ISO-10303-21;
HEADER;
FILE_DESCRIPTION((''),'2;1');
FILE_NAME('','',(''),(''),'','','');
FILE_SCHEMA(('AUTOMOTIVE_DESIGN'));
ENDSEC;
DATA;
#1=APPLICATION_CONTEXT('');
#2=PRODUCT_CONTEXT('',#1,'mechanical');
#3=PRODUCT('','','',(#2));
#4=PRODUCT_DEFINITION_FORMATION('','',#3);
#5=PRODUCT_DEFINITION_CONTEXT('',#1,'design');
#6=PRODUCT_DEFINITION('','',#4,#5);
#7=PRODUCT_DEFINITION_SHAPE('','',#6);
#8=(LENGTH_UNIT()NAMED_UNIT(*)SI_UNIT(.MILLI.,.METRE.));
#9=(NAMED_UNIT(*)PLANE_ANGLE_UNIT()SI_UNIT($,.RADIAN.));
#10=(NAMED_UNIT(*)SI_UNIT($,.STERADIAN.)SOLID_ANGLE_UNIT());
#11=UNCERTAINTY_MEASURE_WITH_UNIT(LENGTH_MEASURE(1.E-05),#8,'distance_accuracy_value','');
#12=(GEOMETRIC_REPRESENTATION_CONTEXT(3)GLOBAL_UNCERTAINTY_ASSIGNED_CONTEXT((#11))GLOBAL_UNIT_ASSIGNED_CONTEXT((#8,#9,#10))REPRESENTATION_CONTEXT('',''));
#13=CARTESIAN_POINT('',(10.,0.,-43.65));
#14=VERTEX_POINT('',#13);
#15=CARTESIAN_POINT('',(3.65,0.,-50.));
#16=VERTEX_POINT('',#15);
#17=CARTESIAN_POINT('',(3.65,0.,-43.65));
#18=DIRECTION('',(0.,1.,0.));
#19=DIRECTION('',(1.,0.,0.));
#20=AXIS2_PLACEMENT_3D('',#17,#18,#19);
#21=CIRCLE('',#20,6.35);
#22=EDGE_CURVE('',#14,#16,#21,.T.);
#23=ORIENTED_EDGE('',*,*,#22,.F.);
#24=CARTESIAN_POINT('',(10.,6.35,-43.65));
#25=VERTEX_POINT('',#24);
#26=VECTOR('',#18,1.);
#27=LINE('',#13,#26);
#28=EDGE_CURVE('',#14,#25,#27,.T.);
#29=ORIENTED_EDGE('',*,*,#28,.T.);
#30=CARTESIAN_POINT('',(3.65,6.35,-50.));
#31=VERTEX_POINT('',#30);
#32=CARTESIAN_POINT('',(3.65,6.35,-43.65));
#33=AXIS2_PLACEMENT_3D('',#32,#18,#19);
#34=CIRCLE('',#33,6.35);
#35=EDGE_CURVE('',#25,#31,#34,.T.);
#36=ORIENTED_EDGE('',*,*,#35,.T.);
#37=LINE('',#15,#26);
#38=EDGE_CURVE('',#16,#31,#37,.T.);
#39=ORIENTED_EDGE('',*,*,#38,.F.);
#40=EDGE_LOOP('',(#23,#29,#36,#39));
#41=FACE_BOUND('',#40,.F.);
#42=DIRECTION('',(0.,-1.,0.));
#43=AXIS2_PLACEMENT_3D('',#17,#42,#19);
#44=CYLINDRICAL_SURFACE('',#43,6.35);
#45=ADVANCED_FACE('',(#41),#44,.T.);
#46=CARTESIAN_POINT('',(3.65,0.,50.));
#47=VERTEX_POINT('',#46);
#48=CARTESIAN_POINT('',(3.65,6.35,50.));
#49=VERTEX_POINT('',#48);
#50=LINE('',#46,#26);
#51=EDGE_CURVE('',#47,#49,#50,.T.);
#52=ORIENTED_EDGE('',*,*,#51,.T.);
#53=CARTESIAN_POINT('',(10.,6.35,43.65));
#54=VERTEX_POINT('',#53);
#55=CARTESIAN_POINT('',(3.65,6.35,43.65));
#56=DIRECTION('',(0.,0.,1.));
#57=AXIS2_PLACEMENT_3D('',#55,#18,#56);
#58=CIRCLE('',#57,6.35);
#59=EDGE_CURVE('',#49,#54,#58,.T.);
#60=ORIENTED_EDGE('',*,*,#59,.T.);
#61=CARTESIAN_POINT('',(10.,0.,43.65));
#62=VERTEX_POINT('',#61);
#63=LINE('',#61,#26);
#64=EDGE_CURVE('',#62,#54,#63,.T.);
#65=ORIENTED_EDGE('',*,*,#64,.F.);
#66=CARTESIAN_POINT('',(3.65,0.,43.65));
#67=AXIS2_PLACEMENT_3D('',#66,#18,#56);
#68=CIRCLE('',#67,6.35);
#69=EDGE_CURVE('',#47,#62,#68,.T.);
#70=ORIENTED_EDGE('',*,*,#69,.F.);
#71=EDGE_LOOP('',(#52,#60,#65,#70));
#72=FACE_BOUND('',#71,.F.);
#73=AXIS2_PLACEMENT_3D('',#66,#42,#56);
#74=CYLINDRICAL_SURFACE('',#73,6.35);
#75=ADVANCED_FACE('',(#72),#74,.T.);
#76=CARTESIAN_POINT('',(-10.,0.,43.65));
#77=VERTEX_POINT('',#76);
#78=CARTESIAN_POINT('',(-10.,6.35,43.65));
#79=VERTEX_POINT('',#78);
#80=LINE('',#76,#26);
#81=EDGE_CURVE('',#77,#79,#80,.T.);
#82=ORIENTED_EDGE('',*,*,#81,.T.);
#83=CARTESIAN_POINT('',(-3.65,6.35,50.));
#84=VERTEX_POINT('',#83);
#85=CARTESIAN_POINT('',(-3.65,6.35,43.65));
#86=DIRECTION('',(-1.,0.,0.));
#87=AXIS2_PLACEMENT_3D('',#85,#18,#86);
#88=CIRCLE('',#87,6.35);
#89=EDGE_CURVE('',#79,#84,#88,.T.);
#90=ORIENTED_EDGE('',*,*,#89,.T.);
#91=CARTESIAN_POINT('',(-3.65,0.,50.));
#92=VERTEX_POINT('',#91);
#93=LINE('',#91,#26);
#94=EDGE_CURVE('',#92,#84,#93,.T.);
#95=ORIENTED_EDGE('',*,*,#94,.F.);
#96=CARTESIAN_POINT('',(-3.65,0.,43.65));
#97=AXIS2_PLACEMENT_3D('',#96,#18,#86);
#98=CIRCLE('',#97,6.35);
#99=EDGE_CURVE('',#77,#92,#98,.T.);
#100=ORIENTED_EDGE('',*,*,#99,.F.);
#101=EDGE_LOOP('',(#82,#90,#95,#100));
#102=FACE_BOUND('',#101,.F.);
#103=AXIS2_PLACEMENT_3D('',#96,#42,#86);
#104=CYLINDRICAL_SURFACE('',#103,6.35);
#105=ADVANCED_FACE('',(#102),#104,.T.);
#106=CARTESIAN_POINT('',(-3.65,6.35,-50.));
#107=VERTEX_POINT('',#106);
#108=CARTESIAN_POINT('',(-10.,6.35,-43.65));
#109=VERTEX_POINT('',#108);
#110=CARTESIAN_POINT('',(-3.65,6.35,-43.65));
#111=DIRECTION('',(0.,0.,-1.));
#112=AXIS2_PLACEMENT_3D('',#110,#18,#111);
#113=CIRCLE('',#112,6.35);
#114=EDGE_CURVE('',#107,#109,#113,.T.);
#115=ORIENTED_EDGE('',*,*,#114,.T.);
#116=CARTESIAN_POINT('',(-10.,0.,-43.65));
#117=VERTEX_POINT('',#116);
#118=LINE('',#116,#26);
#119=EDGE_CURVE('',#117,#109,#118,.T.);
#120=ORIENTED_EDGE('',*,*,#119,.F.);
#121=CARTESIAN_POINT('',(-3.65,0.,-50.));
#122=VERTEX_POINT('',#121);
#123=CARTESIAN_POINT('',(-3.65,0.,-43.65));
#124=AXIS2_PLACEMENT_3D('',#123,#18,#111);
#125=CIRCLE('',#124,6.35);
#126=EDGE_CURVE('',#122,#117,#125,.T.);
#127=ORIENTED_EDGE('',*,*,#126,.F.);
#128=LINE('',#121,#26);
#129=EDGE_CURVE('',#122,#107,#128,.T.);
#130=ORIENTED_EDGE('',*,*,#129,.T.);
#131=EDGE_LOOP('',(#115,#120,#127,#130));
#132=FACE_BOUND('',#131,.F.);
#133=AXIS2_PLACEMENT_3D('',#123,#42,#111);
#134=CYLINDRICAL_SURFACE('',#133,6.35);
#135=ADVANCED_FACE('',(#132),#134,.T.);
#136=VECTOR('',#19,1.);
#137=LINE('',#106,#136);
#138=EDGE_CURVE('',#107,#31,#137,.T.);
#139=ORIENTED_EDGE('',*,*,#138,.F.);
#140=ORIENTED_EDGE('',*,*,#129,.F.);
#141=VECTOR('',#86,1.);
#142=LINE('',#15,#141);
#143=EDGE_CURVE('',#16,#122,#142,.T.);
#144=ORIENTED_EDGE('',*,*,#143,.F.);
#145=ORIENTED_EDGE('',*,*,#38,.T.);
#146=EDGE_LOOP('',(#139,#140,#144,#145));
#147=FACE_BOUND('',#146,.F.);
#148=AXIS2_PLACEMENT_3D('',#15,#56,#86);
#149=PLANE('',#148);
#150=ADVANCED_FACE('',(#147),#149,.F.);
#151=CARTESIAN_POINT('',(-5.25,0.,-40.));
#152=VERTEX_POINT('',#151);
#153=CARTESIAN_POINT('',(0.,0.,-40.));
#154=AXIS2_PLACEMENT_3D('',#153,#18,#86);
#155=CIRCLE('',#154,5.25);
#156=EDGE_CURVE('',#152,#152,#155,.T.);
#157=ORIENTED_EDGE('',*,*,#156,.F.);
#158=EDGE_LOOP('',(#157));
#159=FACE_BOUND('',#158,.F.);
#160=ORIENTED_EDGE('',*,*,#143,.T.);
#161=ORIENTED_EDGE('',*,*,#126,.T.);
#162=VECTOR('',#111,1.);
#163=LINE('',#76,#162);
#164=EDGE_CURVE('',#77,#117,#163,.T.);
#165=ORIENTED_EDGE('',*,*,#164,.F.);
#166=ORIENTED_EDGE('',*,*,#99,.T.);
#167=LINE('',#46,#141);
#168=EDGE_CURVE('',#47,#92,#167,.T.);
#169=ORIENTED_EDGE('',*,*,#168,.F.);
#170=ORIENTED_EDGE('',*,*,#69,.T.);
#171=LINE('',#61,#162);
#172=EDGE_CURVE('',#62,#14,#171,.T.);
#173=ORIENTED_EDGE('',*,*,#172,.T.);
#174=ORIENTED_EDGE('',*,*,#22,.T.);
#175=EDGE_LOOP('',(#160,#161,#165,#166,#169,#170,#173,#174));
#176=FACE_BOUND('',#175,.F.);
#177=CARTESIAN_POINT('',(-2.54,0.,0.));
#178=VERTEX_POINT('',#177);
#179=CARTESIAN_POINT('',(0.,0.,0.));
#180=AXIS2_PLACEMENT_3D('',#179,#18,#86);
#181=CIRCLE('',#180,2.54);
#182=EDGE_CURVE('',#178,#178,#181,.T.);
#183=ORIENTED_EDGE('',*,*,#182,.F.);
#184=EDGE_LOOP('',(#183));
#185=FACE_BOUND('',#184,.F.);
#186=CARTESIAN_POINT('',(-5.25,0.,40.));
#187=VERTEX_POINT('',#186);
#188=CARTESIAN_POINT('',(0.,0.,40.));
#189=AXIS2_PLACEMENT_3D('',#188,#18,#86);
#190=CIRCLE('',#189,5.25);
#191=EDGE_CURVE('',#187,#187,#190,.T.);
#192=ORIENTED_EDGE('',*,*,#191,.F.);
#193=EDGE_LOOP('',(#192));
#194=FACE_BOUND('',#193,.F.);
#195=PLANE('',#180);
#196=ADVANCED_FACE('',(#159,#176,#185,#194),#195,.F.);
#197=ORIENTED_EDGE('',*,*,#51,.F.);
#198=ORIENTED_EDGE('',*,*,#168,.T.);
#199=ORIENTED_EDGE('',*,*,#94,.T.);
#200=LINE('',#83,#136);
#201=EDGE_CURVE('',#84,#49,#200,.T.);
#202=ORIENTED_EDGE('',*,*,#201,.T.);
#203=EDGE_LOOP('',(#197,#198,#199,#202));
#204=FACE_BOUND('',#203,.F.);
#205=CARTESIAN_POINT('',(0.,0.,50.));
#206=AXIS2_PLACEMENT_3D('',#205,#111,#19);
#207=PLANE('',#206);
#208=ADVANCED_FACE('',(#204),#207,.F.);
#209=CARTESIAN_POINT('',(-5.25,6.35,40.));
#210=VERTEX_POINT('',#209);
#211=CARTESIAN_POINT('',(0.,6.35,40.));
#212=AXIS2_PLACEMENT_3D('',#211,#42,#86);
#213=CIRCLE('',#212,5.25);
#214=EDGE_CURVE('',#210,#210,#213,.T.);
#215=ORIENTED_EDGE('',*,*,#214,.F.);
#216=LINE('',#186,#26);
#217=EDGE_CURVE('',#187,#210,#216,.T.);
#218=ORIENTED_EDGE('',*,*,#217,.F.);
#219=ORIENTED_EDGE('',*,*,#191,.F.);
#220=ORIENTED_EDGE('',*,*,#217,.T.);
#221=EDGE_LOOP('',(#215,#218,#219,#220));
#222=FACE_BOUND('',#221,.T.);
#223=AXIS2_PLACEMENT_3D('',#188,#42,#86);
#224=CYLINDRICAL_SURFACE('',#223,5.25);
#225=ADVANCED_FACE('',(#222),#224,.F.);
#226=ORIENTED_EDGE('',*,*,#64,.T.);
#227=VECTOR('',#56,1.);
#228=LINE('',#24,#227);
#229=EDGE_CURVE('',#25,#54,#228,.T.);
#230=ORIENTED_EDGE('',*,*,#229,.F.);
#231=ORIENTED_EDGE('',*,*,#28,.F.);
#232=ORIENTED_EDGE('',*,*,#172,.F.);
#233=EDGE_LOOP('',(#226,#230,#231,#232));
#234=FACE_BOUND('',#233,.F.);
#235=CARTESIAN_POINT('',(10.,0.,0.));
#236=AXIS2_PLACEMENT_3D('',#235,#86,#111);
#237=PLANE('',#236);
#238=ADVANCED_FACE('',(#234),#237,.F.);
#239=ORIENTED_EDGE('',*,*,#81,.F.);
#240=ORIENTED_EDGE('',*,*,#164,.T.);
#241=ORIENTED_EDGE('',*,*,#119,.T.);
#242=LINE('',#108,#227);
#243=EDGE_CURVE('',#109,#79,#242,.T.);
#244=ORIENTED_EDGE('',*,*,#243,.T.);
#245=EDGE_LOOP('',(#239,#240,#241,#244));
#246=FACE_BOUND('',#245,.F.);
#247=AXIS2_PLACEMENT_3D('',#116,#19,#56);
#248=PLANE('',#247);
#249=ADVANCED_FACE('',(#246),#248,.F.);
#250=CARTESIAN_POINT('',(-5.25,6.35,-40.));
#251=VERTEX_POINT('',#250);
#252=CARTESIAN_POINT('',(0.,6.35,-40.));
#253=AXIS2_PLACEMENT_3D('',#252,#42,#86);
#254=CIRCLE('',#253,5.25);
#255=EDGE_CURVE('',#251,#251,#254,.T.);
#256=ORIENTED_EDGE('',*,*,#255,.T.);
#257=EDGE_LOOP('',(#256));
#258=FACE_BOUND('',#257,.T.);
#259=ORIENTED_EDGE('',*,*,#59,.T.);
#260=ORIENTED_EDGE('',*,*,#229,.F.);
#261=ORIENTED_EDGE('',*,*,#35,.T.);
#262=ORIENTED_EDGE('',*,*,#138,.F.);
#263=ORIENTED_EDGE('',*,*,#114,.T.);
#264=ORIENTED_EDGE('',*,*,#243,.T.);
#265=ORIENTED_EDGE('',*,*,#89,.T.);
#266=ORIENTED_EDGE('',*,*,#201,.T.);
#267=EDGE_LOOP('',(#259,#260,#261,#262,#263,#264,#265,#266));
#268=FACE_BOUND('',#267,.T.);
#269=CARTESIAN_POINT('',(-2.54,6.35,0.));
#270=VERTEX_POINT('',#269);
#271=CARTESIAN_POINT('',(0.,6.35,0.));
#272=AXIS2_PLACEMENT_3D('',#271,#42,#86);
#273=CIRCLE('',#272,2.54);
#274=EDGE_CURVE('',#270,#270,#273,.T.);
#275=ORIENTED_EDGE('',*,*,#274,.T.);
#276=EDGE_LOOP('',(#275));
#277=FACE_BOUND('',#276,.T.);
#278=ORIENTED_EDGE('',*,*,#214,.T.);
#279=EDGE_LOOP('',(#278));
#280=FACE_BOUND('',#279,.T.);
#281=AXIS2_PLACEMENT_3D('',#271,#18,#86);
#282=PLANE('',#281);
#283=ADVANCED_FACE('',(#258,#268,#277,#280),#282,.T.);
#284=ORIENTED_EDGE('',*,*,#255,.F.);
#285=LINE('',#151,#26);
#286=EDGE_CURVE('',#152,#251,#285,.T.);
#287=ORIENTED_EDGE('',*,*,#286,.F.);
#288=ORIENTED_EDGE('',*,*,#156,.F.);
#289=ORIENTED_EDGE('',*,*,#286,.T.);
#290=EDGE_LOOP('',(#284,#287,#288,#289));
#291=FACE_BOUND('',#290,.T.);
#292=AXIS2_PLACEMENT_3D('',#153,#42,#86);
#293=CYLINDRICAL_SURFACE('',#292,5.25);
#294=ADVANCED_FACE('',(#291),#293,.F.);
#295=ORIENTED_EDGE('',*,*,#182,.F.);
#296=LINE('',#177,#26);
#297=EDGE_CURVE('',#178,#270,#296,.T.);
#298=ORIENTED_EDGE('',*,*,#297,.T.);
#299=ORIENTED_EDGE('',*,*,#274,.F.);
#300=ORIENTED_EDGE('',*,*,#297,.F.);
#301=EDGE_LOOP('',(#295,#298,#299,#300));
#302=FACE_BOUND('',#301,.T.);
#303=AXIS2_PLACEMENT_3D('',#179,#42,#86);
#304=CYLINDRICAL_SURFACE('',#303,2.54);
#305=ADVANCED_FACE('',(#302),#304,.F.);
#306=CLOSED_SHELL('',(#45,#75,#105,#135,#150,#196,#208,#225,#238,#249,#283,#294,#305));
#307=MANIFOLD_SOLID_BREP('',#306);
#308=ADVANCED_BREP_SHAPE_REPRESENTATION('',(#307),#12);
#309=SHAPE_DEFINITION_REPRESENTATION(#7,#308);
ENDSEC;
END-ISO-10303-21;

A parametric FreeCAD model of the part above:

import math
import FreeCAD as App
import Part
import Sketcher

V = App.Vector
Q = App.Units.Quantity

doc = App.newDocument("Part")
body = doc.addObject("PartDesign::Body", "Body")

# Sketch on XZ plane
sketch1 = body.newObject("Sketcher::SketchObject", "Sketch")
sketch1.AttachmentSupport = (doc.getObject("XZ_Plane"), [""])
sketch1.MapMode = "FlatFace"
sketch1.addGeometry(Part.ArcOfCircle(Part.Circle(V(3.65, -43.65, 0), V(0, 0, 1), 6.35), math.radians(-90), math.radians(0)), False)
sketch1.addGeometry(Part.LineSegment(V(3.65, -50, 0), V(-3.65, -50, 0)), False)
sketch1.addGeometry(Part.ArcOfCircle(Part.Circle(V(-3.65, -43.65, 0), V(0, 0, 1), 6.35), math.radians(180), math.radians(270)), False)
sketch1.addGeometry(Part.LineSegment(V(-10, -43.65, 0), V(-10, 43.65, 0)), False)
sketch1.addGeometry(Part.ArcOfCircle(Part.Circle(V(-3.65, 43.65, 0), V(0, 0, 1), 6.35), math.radians(90), math.radians(180)), False)
sketch1.addGeometry(Part.LineSegment(V(-3.65, 50, 0), V(3.65, 50, 0)), False)
sketch1.addGeometry(Part.ArcOfCircle(Part.Circle(V(3.65, 43.65, 0), V(0, 0, 1), 6.35), math.radians(0), math.radians(90)), False)
sketch1.addGeometry(Part.LineSegment(V(10, 43.65, 0), V(10, -43.65, 0)), False)
sketch1.addGeometry(Part.Circle(V(0, 0, 0), V(0, 0, 1), 2.54), False)
sketch1.addGeometry(Part.Circle(V(0, -40, 0), V(0, 0, 1), 5.25), False)
sketch1.addGeometry(Part.Circle(V(0, 40, 0), V(0, 0, 1), 5.25), False)
sketch1.addConstraint(Sketcher.Constraint("Tangent", 0, 1, 1, 1))
sketch1.addConstraint(Sketcher.Constraint("Tangent", 1, 2, 2, 2))
sketch1.addConstraint(Sketcher.Constraint("Tangent", 2, 1, 3, 1))
sketch1.addConstraint(Sketcher.Constraint("Tangent", 3, 2, 4, 2))
sketch1.addConstraint(Sketcher.Constraint("Tangent", 4, 1, 5, 1))
sketch1.addConstraint(Sketcher.Constraint("Tangent", 5, 2, 6, 2))
sketch1.addConstraint(Sketcher.Constraint("Tangent", 6, 1, 7, 1))
sketch1.addConstraint(Sketcher.Constraint("Tangent", 7, 2, 0, 2))
sketch1.addConstraint(Sketcher.Constraint("Horizontal", 1))
sketch1.addConstraint(Sketcher.Constraint("Vertical", 3))
sketch1.addConstraint(Sketcher.Constraint("Horizontal", 5))
sketch1.addConstraint(Sketcher.Constraint("Vertical", 7))
sketch1.addConstraint(Sketcher.Constraint("Coincident", 8, 3, -1, 1))
sketch1.addConstraint(Sketcher.Constraint("Equal", 0, 2))
sketch1.addConstraint(Sketcher.Constraint("Equal", 2, 4))
sketch1.addConstraint(Sketcher.Constraint("Equal", 4, 6))
sketch1.addConstraint(Sketcher.Constraint("Equal", 9, 10))
sketch1.addConstraint(Sketcher.Constraint("Symmetric", 0, 3, 4, 3, -1, 1))
sketch1.addConstraint(Sketcher.Constraint("Symmetric", 9, 3, 10, 3, -1, 1))
sketch1.addConstraint(Sketcher.Constraint("PointOnObject", 9, 3, -2))
sketch1.addConstraint(Sketcher.Constraint("Diameter", 8, Q("0.2 in")))
sketch1.addConstraint(Sketcher.Constraint("Radius", 0, Q("0.25 in")))
sketch1.addConstraint(Sketcher.Constraint("Diameter", 9, Q("10.5 mm")))
sketch1.addConstraint(Sketcher.Constraint("DistanceY", 9, 3, 10, 3, Q("3.1496 in")))
sketch1.addConstraint(Sketcher.Constraint("DistanceY", 3, 1, 3, 2, Q("3.437 in")))
sketch1.addConstraint(Sketcher.Constraint("DistanceX", 1, 2, 1, 1, Q("0.2874 in")))
pad1 = body.newObject("PartDesign::Pad", "Pad")
pad1.Profile = sketch1
pad1.Length = Q("0.25 in")
pad1.Reversed = True

doc.recompute()
